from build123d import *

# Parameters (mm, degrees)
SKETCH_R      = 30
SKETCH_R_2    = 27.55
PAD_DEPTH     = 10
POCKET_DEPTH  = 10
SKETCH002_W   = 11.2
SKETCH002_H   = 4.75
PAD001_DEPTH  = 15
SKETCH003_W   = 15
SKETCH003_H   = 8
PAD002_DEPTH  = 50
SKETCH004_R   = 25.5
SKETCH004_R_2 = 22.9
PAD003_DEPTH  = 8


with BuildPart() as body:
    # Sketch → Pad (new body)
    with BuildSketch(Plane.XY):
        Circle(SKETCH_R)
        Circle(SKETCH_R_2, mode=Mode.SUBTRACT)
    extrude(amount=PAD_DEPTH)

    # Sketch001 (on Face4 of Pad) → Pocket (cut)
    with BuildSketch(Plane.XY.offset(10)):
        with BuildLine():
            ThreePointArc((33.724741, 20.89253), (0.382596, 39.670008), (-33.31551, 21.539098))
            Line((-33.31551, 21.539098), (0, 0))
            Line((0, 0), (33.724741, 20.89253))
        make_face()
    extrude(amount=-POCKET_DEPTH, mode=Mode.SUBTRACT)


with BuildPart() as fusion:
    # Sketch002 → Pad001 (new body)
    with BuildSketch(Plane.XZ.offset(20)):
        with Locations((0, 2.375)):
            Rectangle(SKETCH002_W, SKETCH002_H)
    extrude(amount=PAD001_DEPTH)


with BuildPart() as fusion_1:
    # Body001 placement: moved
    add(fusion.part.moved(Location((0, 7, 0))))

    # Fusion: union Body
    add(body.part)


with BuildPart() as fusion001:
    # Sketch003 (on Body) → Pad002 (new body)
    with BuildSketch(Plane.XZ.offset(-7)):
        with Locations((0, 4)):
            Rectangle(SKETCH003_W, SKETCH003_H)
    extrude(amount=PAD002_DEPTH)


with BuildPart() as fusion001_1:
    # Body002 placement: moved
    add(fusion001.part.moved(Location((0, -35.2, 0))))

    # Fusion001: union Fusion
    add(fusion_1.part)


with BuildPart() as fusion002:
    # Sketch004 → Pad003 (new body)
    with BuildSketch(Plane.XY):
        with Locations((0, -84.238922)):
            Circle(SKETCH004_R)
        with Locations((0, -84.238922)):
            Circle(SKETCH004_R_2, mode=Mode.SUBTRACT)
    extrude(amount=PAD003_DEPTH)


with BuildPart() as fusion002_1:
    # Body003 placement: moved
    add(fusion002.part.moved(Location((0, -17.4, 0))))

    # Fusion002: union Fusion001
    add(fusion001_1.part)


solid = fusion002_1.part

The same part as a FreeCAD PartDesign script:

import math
import FreeCAD as App
import Part
import Sketcher

V = App.Vector

doc = App.newDocument("Part")
body = doc.addObject("PartDesign::Body", "Body")

sketch1 = doc.addObject("Sketcher::SketchObject", "Sketch")
body.addObject(sketch1)
sketch1.AttachmentSupport = (doc.XY_Plane, [""])
sketch1.MapMode = "FlatFace"
sketch1.addGeometry([
    Part.Circle(V(0, 0, 0), V(0, 0, 1), 30),
    Part.Circle(V(0, 0, 0), V(0, 0, 1), 28),
], False)
sketch1.addConstraint([
    Sketcher.Constraint("Coincident", 0, 3, -1, 1),
    Sketcher.Constraint("Coincident", 1, 3, -1, 1),
    Sketcher.Constraint("Diameter", 0, 60.0),
    Sketcher.Constraint("Diameter", 1, 55.1),
])
pad1 = doc.addObject("PartDesign::Pad", "Pad")
body.addObject(pad1)
pad1.Profile = sketch1
pad1.Length = 10

sketch2 = doc.addObject("Sketcher::SketchObject", "Sketch001")
body.addObject(sketch2)
sketch2.AttachmentSupport = (doc.XY_Plane, [""])
sketch2.MapMode = "FlatFace"
sketch2.AttachmentOffset = App.Placement(V(0, 0, 10), App.Rotation())
sketch2.addGeometry([
    Part.ArcOfCircle(Part.Circle(V(0, 0, 0), V(0, 0, 1), 40), math.radians(32), math.radians(147)),
    Part.LineSegment(V(-33, 22, 0), V(0, 0, 0)),
    Part.LineSegment(V(0, 0, 0), V(34, 21, 0)),
], False)
sketch2.addConstraint([
    Sketcher.Constraint("Coincident", 0, 2, 1, 1),
    Sketcher.Constraint("Coincident", 1, 2, 2, 1),
    Sketcher.Constraint("Coincident", 2, 2, 0, 1),
    Sketcher.Constraint("Coincident", 0, 3, -1, 1),
    Sketcher.Constraint("Coincident", 1, 2, -1, 1),
    Sketcher.Constraint("Radius", 0, 39.671854),
    Sketcher.Constraint("DistanceY", -1, 1, 0, 2, 21.539098),
    Sketcher.Constraint("DistanceX", -1, 1, 2, 2, 33.724741),
])
pocket1 = doc.addObject("PartDesign::Pocket", "Pocket")
body.addObject(pocket1)
pocket1.Profile = sketch2
pocket1.Length = 10
body2 = doc.addObject("PartDesign::Body", "Body001")

sketch3 = doc.addObject("Sketcher::SketchObject", "Sketch002")
body2.addObject(sketch3)
sketch3.AttachmentSupport = (doc.getObject("XZ_Plane001"), [""])
sketch3.MapMode = "FlatFace"
sketch3.AttachmentOffset = App.Placement(V(0, 0, 20), App.Rotation())
sketch3.addGeometry([
    Part.LineSegment(V(-5.6, 4.8, 0), V(-5.6, 0, 0)),
    Part.LineSegment(V(-5.6, 0, 0), V(5.6, 0, 0)),
    Part.LineSegment(V(5.6, 0, 0), V(5.6, 4.8, 0)),
    Part.LineSegment(V(5.6, 4.8, 0), V(-5.6, 4.8, 0)),
], False)
sketch3.addConstraint([
    Sketcher.Constraint("Coincident", 0, 2, 1, 1),
    Sketcher.Constraint("Coincident", 1, 2, 2, 1),
    Sketcher.Constraint("Coincident", 2, 2, 3, 1),
    Sketcher.Constraint("Coincident", 3, 2, 0, 1),
    Sketcher.Constraint("Vertical", 0),
    Sketcher.Constraint("Horizontal", 1),
    Sketcher.Constraint("Vertical", 2),
    Sketcher.Constraint("Horizontal", 3),
    Sketcher.Constraint("Symmetric", 0, 2, 1, 2, -1, 1),
    Sketcher.Constraint("DistanceX", 1, 1, 1, 2, 11.2),
    Sketcher.Constraint("DistanceY", 0, 2, 0, 1, 4.75),
])
pad2 = doc.addObject("PartDesign::Pad", "Pad001")
body2.addObject(pad2)
pad2.Profile = sketch3
pad2.Length = 15
body3 = doc.addObject("PartDesign::Body", "Body002")
doc.recompute()

body2.Placement = App.Placement(V(0, 7, 0), App.Rotation(V(0, 0, 1), 0))
boolean = doc.addObject("PartDesign::Boolean", "Boolean")
body3.addObject(boolean)
boolean.Type = "Fuse"
boolean.addObjects([body2])
doc.recompute()

boolean2 = doc.addObject("PartDesign::Boolean", "Boolean001")
body3.addObject(boolean2)
boolean2.Type = "Fuse"
boolean2.addObjects([body])
body4 = doc.addObject("PartDesign::Body", "Body003")

sketch4 = doc.addObject("Sketcher::SketchObject", "Sketch003")
body4.addObject(sketch4)
sketch4.AttachmentSupport = (doc.getObject("XZ_Plane003"), [""])
sketch4.MapMode = "FlatFace"
sketch4.AttachmentOffset = App.Placement(V(0, 0, -7), App.Rotation())
sketch4.addGeometry([
    Part.LineSegment(V(-8, 8, 0), V(-8, 0, 0)),
    Part.LineSegment(V(-8, 0, 0), V(8, 0, 0)),
    Part.LineSegment(V(8, 0, 0), V(8, 8, 0)),
    Part.LineSegment(V(8, 8, 0), V(-8, 8, 0)),
], False)
sketch4.addConstraint([
    Sketcher.Constraint("Coincident", 0, 2, 1, 1),
    Sketcher.Constraint("Coincident", 1, 2, 2, 1),
    Sketcher.Constraint("Coincident", 2, 2, 3, 1),
    Sketcher.Constraint("Coincident", 3, 2, 0, 1),
    Sketcher.Constraint("Vertical", 0),
    Sketcher.Constraint("Horizontal", 1),
    Sketcher.Constraint("Vertical", 2),
    Sketcher.Constraint("Horizontal", 3),
    Sketcher.Constraint("Symmetric", 0, 2, 1, 2, -1, 1),
    Sketcher.Constraint("DistanceX", 1, 1, 1, 2, 15.0),
    Sketcher.Constraint("DistanceY", 0, 2, 0, 1, 8.0),
])
pad3 = doc.addObject("PartDesign::Pad", "Pad002")
body4.addObject(pad3)
pad3.Profile = sketch4
pad3.Length = 50
body5 = doc.addObject("PartDesign::Body", "Body004")
doc.recompute()

body4.Placement = App.Placement(V(0, -35.2, 0), App.Rotation(V(0, 0, 1), 0))
boolean3 = doc.addObject("PartDesign::Boolean", "Boolean002")
body5.addObject(boolean3)
boolean3.Type = "Fuse"
boolean3.addObjects([body4])
doc.recompute()

boolean4 = doc.addObject("PartDesign::Boolean", "Boolean003")
body5.addObject(boolean4)
boolean4.Type = "Fuse"
boolean4.addObjects([body3])
body6 = doc.addObject("PartDesign::Body", "Body005")

sketch5 = doc.addObject("Sketcher::SketchObject", "Sketch004")
body6.addObject(sketch5)
sketch5.AttachmentSupport = (doc.getObject("XY_Plane005"), [""])
sketch5.MapMode = "FlatFace"
sketch5.addGeometry([
    Part.Circle(V(0, -84, 0), V(0, 0, 1), 26),
    Part.Circle(V(0, -84, 0), V(0, 0, 1), 23),
], False)
sketch5.addConstraint([
    Sketcher.Constraint("Coincident", 1, 3, 0, 3),
    Sketcher.Constraint("PointOnObject", 0, 3, -2),
    Sketcher.Constraint("Diameter", 0, 51.0),
    Sketcher.Constraint("Diameter", 1, 45.8),
    Sketcher.Constraint("DistanceY", 0, 3, -1, 1, 84.238922),
])
pad4 = doc.addObject("PartDesign::Pad", "Pad003")
body6.addObject(pad4)
pad4.Profile = sketch5
pad4.Length = 8
body7 = doc.addObject("PartDesign::Body", "Body006")
doc.recompute()

body6.Placement = App.Placement(V(0, -17.4, 0), App.Rotation(V(0, 0, 1), 0))
boolean5 = doc.addObject("PartDesign::Boolean", "Boolean004")
body7.addObject(boolean5)
boolean5.Type = "Fuse"
boolean5.addObjects([body6])
doc.recompute()

boolean6 = doc.addObject("PartDesign::Boolean", "Boolean005")
body7.addObject(boolean6)
boolean6.Type = "Fuse"
boolean6.addObjects([body5])

doc.recompute()
